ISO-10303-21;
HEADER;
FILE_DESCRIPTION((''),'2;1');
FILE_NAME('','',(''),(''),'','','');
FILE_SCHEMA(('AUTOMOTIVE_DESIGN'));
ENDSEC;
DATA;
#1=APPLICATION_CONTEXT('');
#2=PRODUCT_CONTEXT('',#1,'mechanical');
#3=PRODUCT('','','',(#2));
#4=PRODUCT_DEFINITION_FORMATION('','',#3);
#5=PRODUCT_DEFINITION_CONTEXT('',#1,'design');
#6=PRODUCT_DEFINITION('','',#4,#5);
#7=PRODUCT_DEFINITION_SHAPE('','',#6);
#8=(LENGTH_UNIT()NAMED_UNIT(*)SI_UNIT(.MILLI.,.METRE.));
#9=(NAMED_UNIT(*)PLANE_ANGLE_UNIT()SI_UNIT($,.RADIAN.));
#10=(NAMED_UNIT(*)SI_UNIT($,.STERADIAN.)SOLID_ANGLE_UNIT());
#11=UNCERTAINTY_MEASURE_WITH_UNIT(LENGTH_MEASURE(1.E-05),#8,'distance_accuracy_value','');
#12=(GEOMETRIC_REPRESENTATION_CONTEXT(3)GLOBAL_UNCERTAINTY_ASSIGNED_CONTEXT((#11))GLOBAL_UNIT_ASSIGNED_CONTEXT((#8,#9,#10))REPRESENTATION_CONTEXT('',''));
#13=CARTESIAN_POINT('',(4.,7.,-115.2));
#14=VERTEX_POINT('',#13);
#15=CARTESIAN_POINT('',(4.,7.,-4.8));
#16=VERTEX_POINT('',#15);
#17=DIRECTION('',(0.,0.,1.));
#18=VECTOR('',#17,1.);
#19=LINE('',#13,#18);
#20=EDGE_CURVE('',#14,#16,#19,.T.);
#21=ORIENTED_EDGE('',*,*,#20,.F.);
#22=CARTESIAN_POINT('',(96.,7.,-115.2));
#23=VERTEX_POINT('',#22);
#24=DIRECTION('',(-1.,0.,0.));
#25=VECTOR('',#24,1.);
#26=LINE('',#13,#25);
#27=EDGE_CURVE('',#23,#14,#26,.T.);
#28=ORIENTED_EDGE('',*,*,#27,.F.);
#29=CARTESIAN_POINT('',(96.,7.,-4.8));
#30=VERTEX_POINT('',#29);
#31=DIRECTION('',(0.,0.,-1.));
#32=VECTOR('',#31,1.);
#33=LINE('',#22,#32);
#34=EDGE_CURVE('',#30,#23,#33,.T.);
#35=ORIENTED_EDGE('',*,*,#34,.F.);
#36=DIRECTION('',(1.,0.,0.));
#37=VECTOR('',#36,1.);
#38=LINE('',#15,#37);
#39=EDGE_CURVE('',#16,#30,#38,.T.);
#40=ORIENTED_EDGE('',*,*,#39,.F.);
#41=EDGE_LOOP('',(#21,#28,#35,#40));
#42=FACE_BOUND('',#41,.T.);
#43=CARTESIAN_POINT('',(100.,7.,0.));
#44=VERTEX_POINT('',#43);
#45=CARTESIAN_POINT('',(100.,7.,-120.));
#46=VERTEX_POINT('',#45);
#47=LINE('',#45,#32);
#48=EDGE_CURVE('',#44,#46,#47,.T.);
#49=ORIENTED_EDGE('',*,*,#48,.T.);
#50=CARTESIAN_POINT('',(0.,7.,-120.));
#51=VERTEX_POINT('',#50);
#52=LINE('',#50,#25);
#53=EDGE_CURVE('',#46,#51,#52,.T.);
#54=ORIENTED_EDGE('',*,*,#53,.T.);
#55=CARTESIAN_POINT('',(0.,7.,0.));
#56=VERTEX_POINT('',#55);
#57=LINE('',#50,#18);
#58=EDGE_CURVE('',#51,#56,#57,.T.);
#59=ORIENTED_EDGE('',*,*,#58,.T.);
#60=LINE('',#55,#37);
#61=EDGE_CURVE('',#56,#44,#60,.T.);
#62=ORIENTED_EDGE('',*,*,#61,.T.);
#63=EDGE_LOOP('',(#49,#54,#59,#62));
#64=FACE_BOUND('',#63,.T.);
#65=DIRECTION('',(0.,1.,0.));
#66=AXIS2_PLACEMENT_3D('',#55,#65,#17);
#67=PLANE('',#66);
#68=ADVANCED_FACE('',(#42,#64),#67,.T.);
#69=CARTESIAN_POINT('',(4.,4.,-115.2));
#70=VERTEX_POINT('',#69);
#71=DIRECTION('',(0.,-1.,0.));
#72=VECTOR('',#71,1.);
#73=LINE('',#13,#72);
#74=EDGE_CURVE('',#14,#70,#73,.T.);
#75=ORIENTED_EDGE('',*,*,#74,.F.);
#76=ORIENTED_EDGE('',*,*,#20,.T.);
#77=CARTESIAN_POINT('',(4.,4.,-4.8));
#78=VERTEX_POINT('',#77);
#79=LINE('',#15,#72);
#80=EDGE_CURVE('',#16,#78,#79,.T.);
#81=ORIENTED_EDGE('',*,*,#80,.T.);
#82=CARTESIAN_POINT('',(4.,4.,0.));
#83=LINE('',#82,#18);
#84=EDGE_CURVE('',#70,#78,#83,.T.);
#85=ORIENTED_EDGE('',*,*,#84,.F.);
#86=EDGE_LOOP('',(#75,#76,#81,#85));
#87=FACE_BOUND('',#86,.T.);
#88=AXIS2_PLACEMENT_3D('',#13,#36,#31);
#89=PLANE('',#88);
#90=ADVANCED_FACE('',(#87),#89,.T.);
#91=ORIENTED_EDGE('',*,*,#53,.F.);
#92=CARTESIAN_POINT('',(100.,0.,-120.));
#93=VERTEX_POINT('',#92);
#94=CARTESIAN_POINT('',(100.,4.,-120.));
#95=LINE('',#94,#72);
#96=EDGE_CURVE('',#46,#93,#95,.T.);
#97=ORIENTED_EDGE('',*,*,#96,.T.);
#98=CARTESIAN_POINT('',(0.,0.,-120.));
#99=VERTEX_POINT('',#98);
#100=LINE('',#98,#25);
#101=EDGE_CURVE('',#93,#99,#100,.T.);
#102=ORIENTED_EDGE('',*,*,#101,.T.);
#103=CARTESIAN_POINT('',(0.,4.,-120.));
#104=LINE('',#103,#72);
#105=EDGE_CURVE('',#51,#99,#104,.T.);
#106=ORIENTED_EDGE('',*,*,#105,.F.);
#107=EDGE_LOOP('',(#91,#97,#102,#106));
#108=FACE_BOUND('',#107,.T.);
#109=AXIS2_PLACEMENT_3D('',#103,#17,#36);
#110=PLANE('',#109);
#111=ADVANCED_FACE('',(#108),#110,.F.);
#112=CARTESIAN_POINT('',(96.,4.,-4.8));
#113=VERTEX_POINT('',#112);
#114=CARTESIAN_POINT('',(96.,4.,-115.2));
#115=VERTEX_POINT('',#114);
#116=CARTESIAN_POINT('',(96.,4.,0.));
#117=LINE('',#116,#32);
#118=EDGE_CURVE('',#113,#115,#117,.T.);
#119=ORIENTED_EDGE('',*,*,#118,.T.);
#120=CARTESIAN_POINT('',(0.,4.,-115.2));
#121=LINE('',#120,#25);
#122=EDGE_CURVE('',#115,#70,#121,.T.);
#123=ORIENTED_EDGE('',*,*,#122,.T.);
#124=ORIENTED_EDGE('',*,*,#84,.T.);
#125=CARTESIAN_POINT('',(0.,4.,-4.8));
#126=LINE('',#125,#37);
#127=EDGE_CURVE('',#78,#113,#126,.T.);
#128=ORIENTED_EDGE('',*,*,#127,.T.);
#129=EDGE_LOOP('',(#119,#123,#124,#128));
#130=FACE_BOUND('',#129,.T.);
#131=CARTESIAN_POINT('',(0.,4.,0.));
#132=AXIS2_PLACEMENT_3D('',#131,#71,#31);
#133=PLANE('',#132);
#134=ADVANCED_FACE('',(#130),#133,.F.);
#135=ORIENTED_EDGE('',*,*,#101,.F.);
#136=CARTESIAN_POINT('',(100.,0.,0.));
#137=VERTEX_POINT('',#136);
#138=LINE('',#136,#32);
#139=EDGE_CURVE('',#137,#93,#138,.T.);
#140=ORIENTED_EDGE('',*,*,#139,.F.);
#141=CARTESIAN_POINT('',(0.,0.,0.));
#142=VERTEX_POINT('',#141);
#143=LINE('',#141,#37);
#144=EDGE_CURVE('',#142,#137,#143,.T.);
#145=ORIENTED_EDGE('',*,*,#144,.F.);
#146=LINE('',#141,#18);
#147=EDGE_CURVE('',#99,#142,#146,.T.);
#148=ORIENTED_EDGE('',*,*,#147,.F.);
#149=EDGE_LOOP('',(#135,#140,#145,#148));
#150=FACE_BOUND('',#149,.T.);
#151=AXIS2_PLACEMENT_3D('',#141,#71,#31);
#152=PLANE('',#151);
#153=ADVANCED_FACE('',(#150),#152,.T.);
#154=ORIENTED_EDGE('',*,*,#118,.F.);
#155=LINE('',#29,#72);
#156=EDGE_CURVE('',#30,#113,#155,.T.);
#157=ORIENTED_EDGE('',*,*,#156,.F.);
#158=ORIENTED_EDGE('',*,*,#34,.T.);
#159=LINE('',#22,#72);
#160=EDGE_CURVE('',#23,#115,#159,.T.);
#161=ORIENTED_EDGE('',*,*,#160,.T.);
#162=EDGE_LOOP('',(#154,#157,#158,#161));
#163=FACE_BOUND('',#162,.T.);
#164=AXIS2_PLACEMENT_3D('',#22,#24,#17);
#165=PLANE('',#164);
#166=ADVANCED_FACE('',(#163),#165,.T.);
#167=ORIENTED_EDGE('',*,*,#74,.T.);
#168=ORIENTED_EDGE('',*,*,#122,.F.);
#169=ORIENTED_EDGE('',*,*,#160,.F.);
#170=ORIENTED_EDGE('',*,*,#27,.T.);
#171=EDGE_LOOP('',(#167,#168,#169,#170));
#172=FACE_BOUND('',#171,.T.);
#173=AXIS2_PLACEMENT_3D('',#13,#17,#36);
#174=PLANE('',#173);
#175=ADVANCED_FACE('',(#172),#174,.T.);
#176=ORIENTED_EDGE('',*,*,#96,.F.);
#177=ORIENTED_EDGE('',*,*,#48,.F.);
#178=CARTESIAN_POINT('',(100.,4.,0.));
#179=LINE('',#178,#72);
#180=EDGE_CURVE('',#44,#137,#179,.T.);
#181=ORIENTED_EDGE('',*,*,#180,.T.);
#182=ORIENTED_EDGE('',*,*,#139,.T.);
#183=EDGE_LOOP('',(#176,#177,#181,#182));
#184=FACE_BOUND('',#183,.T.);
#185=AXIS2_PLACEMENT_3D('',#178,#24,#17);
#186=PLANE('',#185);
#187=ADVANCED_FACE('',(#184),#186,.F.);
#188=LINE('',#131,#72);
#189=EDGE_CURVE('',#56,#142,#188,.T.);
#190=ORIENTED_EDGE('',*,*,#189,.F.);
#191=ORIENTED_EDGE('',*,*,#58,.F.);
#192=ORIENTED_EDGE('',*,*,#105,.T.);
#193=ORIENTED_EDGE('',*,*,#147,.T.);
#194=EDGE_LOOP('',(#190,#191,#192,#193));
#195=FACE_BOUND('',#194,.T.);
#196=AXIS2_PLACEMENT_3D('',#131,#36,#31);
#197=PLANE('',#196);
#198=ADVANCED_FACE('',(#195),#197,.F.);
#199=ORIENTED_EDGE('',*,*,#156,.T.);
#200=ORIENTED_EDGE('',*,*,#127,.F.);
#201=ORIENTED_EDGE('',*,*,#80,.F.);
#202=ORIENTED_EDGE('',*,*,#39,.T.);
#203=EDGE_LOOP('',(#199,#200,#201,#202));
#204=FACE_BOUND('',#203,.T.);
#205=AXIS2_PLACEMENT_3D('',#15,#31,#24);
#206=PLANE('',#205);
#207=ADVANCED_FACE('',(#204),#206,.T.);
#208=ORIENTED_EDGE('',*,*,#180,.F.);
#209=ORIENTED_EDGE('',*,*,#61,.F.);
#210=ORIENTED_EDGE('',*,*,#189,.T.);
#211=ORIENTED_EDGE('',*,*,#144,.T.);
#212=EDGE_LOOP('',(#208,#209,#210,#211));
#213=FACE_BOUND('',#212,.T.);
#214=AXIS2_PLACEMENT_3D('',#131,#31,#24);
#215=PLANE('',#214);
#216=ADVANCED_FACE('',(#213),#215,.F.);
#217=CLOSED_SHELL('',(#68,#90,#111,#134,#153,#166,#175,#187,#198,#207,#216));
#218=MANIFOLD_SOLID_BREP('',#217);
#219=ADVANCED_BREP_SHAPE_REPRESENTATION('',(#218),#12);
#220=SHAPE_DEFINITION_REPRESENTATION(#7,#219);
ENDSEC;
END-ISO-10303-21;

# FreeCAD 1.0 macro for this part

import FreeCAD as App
import Part
import Sketcher
Q = App.Units.Quantity

doc = App.newDocument("Part")
body = doc.addObject("PartDesign::Body", "Body")

# Sketch on XZ plane
sketch1 = doc.addObject("Sketcher::SketchObject", "Sketch")
body.addObject(sketch1)
sketch1.AttachmentSupport = (doc.XZ_Plane, [""])
sketch1.MapMode = "FlatFace"
sketch1.addGeometry([
    Part.LineSegment(App.Vector(0, -120, 0), App.Vector(0, 0, 0)),
    Part.LineSegment(App.Vector(0, 0, 0), App.Vector(100, 0, 0)),
    Part.LineSegment(App.Vector(100, 0, 0), App.Vector(100, -120, 0)),
    Part.LineSegment(App.Vector(100, -120, 0), App.Vector(0, -120, 0)),
], False)
sketch1.addConstraint([
    Sketcher.Constraint("Coincident", 0, 2, 1, 1),
    Sketcher.Constraint("Coincident", 1, 2, 2, 1),
    Sketcher.Constraint("Coincident", 2, 2, 3, 1),
    Sketcher.Constraint("Coincident", 3, 2, 0, 1),
    Sketcher.Constraint("Vertical", 0),
    Sketcher.Constraint("Horizontal", 1),
    Sketcher.Constraint("Vertical", 2),
    Sketcher.Constraint("Horizontal", 3),
    Sketcher.Constraint("Coincident", 0, 2, -1, 1),
    Sketcher.Constraint("DistanceX", 1, 1, 1, 2, Q("100 mm")),
    Sketcher.Constraint("DistanceY", 0, 1, 0, 2, Q("120 mm")),
])
pad1 = doc.addObject("PartDesign::Pad", "Pad")
body.addObject(pad1)
pad1.Profile = sketch1
pad1.Length = 4
pad1.Reversed = True

# Sketch on XZ plane
sketch2 = doc.addObject("Sketcher::SketchObject", "Sketch001")
body.addObject(sketch2)
sketch2.AttachmentSupport = (doc.XZ_Plane, [""])
sketch2.MapMode = "FlatFace"
sketch2.addGeometry([
    Part.LineSegment(App.Vector(0, -120, 0), App.Vector(0, 0, 0)),  # 0
    Part.LineSegment(App.Vector(0, 0, 0), App.Vector(100, 0, 0)),  # 1
    Part.LineSegment(App.Vector(100, 0, 0), App.Vector(100, -120, 0)),  # 2
    Part.LineSegment(App.Vector(100, -120, 0), App.Vector(0, -120, 0)),  # 3
    Part.LineSegment(App.Vector(96, -5, 0), App.Vector(4, -5, 0)),  # 4
    Part.LineSegment(App.Vector(4, -5, 0), App.Vector(4, -115, 0)),  # 5
    Part.LineSegment(App.Vector(4, -115, 0), App.Vector(96, -115, 0)),  # 6
    Part.LineSegment(App.Vector(96, -115, 0), App.Vector(96, -5, 0)),  # 7
], False)
sketch2.addConstraint([
    Sketcher.Constraint("Coincident", 0, 2, 1, 1),
    Sketcher.Constraint("Coincident", 1, 2, 2, 1),
    Sketcher.Constraint("Coincident", 2, 2, 3, 1),
    Sketcher.Constraint("Coincident", 3, 2, 0, 1),
    Sketcher.Constraint("Coincident", 4, 2, 5, 1),
    Sketcher.Constraint("Coincident", 5, 2, 6, 1),
    Sketcher.Constraint("Coincident", 6, 2, 7, 1),
    Sketcher.Constraint("Coincident", 7, 2, 4, 1),
    Sketcher.Constraint("Vertical", 0),
    Sketcher.Constraint("Horizontal", 1),
    Sketcher.Constraint("Vertical", 2),
    Sketcher.Constraint("Horizontal", 3),
    Sketcher.Constraint("Horizontal", 4),
    Sketcher.Constraint("Vertical", 5),
    Sketcher.Constraint("Horizontal", 6),
    Sketcher.Constraint("Vertical", 7),
    Sketcher.Constraint("Coincident", 0, 2, -1, 1),
    Sketcher.Constraint("DistanceX", 1, 1, 1, 2, Q("100 mm")),
    Sketcher.Constraint("DistanceX", 4, 2, 4, 1, Q("92 mm")),
    Sketcher.Constraint("DistanceY", 0, 1, 0, 2, Q("120 mm")),
    Sketcher.Constraint("DistanceY", 5, 2, 5, 1, Q("110.4 mm")),
    Sketcher.Constraint("DistanceX", -1, 1, 4, 2, Q("4 mm")),
    Sketcher.Constraint("DistanceY", 4, 2, -1, 1, Q("4.8 mm")),
])
pad2 = doc.addObject("PartDesign::Pad", "Pad001")
body.addObject(pad2)
pad2.Profile = sketch2
pad2.Length = 7
pad2.Reversed = True

doc.recompute()
